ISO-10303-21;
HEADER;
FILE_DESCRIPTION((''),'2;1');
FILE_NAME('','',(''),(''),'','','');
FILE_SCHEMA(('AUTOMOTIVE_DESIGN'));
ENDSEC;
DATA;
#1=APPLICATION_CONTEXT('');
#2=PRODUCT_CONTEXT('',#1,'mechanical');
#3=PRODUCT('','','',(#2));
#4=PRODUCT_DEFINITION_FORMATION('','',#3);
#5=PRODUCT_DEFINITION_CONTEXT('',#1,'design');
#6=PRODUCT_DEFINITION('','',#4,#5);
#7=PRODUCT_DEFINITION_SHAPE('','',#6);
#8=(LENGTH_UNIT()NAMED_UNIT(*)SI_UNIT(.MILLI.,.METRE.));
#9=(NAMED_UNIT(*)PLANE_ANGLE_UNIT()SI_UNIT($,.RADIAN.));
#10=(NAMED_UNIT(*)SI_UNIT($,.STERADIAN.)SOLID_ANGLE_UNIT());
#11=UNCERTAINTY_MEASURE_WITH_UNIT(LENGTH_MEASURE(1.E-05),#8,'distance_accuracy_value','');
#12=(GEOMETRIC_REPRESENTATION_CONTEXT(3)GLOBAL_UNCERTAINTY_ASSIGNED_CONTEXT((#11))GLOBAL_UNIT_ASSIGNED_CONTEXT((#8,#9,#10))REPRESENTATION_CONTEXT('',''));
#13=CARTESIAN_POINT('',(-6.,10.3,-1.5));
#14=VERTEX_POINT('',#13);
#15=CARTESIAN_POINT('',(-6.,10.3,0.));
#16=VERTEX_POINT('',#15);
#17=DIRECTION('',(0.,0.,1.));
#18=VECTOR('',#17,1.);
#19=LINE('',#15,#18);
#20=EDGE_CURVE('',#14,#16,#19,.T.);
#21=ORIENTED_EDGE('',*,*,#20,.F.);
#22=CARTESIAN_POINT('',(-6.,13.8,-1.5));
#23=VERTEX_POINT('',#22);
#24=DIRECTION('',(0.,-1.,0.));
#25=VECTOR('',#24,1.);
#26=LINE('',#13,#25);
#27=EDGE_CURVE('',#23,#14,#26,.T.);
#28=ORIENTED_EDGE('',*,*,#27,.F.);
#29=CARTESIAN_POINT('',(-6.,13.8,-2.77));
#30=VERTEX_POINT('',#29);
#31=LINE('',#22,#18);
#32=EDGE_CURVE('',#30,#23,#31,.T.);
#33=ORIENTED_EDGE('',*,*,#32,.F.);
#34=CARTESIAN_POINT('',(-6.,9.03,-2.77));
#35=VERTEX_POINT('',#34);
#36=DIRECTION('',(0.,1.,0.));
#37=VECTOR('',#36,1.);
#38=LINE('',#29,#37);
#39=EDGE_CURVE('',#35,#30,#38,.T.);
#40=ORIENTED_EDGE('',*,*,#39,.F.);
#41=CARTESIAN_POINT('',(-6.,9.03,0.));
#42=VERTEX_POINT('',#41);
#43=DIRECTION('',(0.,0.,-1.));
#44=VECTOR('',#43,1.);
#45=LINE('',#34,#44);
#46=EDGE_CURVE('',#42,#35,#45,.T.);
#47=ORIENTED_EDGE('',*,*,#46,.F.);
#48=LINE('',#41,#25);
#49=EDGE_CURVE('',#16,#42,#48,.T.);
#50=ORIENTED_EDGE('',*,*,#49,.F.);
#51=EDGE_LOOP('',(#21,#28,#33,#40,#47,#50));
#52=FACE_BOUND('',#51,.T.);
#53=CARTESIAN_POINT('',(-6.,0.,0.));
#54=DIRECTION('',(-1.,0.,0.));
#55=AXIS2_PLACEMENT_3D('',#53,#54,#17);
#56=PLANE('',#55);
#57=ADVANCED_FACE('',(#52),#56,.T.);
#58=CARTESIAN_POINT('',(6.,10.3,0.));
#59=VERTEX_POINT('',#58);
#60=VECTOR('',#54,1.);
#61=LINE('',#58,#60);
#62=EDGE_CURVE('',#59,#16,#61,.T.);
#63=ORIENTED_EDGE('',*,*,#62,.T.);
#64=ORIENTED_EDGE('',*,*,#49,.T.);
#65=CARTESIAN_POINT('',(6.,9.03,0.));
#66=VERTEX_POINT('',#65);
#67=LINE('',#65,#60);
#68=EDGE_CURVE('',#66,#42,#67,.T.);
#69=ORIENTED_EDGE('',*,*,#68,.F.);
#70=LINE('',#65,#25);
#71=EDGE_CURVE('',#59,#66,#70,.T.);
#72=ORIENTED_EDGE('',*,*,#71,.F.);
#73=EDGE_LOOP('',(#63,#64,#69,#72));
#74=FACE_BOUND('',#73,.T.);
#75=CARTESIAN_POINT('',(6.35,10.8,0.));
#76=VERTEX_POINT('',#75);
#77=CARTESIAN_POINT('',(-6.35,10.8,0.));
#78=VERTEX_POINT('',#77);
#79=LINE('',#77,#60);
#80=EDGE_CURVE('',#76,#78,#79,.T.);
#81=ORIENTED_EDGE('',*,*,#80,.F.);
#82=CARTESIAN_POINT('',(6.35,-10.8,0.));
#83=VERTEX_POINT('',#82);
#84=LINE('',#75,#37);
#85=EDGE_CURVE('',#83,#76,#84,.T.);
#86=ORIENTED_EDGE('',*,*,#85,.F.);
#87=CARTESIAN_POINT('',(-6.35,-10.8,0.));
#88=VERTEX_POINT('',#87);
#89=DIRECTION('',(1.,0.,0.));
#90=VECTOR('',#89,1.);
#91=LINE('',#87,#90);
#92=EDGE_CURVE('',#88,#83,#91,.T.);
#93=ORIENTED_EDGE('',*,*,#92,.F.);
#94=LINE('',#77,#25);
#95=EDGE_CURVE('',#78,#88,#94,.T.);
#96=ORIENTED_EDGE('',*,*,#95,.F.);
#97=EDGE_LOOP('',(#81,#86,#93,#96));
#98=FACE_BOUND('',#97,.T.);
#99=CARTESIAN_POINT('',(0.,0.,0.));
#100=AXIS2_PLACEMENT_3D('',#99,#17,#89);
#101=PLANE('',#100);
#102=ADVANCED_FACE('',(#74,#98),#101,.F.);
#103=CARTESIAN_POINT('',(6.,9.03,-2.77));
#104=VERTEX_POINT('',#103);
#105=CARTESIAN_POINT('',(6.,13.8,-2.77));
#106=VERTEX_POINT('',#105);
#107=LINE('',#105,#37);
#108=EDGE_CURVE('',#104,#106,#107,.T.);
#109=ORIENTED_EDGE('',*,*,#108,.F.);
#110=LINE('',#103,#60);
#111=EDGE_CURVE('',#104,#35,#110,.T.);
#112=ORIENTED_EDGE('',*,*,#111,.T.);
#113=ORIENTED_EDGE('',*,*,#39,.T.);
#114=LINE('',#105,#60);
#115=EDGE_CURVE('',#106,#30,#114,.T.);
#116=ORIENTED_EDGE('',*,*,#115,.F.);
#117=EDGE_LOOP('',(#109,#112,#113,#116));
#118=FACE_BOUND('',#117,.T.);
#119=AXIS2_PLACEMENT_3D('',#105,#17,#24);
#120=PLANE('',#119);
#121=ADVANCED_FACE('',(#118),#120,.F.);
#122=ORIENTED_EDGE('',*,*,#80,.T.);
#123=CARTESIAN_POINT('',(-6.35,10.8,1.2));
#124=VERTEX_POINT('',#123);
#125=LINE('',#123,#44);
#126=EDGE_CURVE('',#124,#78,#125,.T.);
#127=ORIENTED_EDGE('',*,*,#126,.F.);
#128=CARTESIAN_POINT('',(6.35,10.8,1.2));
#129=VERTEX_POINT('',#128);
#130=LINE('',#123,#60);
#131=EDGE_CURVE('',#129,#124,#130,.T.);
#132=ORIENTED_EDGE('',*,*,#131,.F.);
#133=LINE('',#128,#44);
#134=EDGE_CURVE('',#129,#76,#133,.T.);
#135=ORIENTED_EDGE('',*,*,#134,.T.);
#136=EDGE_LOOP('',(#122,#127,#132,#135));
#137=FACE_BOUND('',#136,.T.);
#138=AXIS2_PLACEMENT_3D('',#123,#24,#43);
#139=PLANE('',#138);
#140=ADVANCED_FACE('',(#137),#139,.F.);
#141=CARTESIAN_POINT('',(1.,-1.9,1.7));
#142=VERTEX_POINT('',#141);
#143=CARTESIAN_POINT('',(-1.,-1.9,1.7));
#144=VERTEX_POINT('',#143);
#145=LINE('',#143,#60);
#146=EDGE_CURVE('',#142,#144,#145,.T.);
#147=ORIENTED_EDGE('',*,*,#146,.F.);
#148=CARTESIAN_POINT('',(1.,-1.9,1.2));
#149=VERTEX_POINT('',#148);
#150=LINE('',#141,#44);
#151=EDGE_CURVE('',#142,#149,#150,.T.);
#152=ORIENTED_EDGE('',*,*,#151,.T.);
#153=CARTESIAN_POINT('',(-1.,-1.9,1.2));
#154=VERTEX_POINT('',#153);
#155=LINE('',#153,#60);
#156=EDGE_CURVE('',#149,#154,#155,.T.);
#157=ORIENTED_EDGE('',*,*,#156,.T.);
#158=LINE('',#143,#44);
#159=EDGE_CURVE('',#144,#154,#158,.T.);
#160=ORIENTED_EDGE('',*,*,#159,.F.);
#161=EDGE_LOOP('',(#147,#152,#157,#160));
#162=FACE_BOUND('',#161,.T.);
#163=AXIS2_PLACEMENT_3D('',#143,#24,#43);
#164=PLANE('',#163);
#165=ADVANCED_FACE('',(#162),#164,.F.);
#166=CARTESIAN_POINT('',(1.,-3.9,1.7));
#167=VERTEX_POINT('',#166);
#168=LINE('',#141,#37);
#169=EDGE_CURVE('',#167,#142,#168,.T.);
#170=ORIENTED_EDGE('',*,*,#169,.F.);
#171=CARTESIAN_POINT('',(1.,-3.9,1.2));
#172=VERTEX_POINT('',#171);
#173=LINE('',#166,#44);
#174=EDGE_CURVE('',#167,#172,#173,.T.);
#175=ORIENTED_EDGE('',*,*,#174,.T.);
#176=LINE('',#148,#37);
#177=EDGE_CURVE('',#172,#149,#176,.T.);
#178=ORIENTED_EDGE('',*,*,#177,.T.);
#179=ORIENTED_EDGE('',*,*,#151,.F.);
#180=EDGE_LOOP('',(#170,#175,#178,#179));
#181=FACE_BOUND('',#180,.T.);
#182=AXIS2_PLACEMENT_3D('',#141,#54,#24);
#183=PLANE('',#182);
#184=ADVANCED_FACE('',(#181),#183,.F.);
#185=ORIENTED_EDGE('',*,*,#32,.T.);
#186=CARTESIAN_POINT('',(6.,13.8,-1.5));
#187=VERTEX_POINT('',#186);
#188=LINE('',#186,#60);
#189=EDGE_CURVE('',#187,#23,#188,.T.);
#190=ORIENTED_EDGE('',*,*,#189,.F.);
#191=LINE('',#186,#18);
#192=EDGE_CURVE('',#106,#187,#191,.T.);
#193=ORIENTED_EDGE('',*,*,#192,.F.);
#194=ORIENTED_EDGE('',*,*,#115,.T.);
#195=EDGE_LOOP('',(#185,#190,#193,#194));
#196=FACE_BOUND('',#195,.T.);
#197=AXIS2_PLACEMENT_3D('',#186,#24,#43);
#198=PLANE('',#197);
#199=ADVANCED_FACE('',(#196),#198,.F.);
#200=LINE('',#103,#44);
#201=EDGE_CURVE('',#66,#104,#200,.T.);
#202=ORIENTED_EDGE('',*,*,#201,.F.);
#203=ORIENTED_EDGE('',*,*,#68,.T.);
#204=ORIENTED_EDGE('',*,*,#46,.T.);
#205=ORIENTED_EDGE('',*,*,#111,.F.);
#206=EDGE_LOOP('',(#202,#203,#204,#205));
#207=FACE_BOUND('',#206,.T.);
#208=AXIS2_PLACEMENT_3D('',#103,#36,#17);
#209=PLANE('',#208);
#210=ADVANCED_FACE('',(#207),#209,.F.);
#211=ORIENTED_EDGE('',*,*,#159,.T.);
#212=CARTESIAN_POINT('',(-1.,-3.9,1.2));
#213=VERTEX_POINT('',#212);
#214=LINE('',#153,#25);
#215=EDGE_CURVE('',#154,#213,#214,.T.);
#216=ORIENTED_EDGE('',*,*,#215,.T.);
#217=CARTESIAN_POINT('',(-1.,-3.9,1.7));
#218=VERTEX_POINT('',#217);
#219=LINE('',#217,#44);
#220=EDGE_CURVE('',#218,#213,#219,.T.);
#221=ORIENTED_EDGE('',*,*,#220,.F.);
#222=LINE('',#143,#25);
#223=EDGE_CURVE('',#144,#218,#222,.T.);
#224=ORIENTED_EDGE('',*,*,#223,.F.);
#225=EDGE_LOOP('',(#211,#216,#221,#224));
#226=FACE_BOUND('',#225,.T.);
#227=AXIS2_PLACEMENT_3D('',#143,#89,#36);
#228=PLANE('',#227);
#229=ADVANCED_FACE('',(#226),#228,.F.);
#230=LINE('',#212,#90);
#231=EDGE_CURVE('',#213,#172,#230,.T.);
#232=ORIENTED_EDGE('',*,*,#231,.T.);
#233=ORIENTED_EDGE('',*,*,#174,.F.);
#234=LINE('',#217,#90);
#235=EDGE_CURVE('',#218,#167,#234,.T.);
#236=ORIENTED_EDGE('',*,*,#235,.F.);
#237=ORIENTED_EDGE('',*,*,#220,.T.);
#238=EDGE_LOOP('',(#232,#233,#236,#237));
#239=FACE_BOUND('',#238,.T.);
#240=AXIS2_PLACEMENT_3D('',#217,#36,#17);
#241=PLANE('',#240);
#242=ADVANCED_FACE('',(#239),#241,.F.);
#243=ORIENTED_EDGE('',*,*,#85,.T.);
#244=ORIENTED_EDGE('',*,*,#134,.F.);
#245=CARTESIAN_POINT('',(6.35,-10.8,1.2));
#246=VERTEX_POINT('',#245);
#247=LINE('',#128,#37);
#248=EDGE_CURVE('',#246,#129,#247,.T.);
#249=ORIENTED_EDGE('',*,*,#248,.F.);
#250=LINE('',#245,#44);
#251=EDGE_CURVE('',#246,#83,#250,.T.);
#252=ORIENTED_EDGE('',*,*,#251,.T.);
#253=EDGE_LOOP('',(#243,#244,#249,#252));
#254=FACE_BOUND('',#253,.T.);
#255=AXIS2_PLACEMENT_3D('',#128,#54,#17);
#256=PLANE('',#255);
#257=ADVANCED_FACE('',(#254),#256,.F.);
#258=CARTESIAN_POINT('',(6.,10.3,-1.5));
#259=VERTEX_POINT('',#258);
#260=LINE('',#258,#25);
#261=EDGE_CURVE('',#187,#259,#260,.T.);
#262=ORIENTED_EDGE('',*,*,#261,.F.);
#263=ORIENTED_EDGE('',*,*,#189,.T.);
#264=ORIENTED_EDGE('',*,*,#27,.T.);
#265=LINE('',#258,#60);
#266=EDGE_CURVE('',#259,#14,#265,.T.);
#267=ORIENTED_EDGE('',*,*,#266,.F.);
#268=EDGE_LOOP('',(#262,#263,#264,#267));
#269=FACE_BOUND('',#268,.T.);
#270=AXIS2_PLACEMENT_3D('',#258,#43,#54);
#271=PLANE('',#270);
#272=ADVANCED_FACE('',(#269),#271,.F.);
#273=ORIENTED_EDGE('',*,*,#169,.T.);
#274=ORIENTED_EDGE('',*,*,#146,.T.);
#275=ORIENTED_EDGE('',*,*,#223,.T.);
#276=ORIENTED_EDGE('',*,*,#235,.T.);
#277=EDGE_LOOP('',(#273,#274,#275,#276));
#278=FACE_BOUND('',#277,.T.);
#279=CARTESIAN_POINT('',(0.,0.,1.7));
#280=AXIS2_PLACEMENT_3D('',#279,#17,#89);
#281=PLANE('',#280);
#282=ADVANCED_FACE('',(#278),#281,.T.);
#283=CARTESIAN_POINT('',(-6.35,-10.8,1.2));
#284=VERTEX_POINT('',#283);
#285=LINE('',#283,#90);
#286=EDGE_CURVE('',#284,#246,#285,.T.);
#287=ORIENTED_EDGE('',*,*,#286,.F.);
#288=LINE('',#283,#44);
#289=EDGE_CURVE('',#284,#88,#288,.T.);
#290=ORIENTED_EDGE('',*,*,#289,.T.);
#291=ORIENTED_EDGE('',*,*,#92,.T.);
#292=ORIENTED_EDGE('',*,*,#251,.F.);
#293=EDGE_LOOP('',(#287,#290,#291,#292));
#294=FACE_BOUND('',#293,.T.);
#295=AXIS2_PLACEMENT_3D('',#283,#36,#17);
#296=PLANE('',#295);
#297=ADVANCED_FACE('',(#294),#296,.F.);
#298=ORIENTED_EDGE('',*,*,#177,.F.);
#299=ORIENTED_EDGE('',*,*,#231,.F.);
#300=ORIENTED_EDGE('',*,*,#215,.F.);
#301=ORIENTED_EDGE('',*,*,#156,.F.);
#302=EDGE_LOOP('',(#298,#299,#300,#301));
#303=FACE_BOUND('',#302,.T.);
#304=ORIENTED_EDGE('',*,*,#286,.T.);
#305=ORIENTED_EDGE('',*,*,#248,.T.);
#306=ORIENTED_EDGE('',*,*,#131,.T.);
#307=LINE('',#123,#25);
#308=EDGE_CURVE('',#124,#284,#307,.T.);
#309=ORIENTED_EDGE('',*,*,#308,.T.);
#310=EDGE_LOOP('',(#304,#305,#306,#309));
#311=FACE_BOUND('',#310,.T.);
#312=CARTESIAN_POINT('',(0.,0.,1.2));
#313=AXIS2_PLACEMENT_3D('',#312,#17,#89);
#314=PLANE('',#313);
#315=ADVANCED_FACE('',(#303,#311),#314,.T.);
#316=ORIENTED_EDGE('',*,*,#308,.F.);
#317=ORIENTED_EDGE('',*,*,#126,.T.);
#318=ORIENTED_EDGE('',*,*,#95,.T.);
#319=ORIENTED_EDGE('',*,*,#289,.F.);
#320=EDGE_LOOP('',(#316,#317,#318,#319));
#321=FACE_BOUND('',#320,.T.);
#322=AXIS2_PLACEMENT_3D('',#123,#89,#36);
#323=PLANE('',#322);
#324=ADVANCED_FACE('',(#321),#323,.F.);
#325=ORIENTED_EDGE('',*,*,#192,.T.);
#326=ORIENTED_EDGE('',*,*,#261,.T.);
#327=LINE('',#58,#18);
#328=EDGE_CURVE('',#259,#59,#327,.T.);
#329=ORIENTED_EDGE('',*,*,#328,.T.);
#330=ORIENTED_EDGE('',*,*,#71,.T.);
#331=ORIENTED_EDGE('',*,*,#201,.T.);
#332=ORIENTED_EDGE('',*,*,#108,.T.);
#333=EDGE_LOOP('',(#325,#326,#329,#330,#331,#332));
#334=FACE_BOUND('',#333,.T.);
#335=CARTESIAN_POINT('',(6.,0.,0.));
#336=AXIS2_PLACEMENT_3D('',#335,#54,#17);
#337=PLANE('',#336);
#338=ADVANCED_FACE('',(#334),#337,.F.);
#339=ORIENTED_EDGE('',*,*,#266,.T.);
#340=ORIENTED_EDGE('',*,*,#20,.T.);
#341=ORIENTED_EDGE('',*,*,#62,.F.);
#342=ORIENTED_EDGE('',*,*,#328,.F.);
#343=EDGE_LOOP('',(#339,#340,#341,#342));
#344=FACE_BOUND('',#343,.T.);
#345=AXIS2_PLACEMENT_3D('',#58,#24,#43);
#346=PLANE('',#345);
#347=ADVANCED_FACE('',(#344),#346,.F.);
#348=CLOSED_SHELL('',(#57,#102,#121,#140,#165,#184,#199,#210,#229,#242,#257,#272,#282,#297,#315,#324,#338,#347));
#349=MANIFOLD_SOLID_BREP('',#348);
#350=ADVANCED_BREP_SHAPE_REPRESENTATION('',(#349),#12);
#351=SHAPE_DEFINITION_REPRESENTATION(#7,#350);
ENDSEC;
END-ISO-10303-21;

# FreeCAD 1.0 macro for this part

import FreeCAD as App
import Part
import Sketcher

doc = App.newDocument("Part")
body = doc.addObject("PartDesign::Body", "Body")

# Sketch on XY plane
sketch1 = body.newObject("Sketcher::SketchObject", "Sketch")
sketch1.AttachmentSupport = (doc.getObject("XY_Plane"), [""])
sketch1.MapMode = "FlatFace"
sketch1.addGeometry(Part.LineSegment(App.Vector(-6, 11, 0), App.Vector(-6, -11, 0)), False)
sketch1.addGeometry(Part.LineSegment(App.Vector(-6, -11, 0), App.Vector(6, -11, 0)), False)
sketch1.addGeometry(Part.LineSegment(App.Vector(6, -11, 0), App.Vector(6, 11, 0)), False)
sketch1.addGeometry(Part.LineSegment(App.Vector(6, 11, 0), App.Vector(-6, 11, 0)), False)
sketch1.addConstraint(Sketcher.Constraint("Coincident", 0, 2, 1, 1))
sketch1.addConstraint(Sketcher.Constraint("Coincident", 1, 2, 2, 1))
sketch1.addConstraint(Sketcher.Constraint("Coincident", 2, 2, 3, 1))
sketch1.addConstraint(Sketcher.Constraint("Coincident", 3, 2, 0, 1))
sketch1.addConstraint(Sketcher.Constraint("Vertical", 0))
sketch1.addConstraint(Sketcher.Constraint("Horizontal", 1))
sketch1.addConstraint(Sketcher.Constraint("Vertical", 2))
sketch1.addConstraint(Sketcher.Constraint("Horizontal", 3))
sketch1.addConstraint(Sketcher.Constraint("Symmetric", 0, 2, 2, 2, -1, 1))
sketch1.addConstraint(Sketcher.Constraint("DistanceX", 1, 1, 1, 2, 12.7))
sketch1.addConstraint(Sketcher.Constraint("DistanceY", 0, 2, 0, 1, 21.6))
pad1 = body.newObject("PartDesign::Pad", "Pad")
pad1.Profile = sketch1
pad1.Length = 1.2

# Sketch on XY plane
sketch2 = body.newObject("Sketcher::SketchObject", "Sketch001")
sketch2.AttachmentSupport = (doc.getObject("XY_Plane"), [""])
sketch2.MapMode = "FlatFace"
sketch2.AttachmentOffset = App.Placement(App.Vector(0, 0, 1.2), App.Rotation())
sketch2.addGeometry(Part.LineSegment(App.Vector(-1, -1.9, 0), App.Vector(-1, -3.9, 0)), False)
sketch2.addGeometry(Part.LineSegment(App.Vector(-1, -3.9, 0), App.Vector(1, -3.9, 0)), False)
sketch2.addGeometry(Part.LineSegment(App.Vector(1, -3.9, 0), App.Vector(1, -1.9, 0)), False)
sketch2.addGeometry(Part.LineSegment(App.Vector(1, -1.9, 0), App.Vector(-1, -1.9, 0)), False)
sketch2.addConstraint(Sketcher.Constraint("Coincident", 0, 2, 1, 1))
sketch2.addConstraint(Sketcher.Constraint("Coincident", 1, 2, 2, 1))
sketch2.addConstraint(Sketcher.Constraint("Coincident", 2, 2, 3, 1))
sketch2.addConstraint(Sketcher.Constraint("Coincident", 3, 2, 0, 1))
sketch2.addConstraint(Sketcher.Constraint("Vertical", 0))
sketch2.addConstraint(Sketcher.Constraint("Horizontal", 1))
sketch2.addConstraint(Sketcher.Constraint("Vertical", 2))
sketch2.addConstraint(Sketcher.Constraint("Horizontal", 3))
sketch2.addConstraint(Sketcher.Constraint("Equal", 3, 0))
sketch2.addConstraint(Sketcher.Constraint("DistanceX", 1, 1, 1, 2, 2.0))
sketch2.addConstraint(Sketcher.Constraint("DistanceX", 0, 2, -1, 1, 1.0))
sketch2.addConstraint(Sketcher.Constraint("DistanceY", 0, 2, -1, 1, 3.9))
pad2 = body.newObject("PartDesign::Pad", "Pad001")
pad2.Profile = sketch2
pad2.Length = 0.5

# Sketch on YZ plane
sketch3 = body.newObject("Sketcher::SketchObject", "Sketch002")
sketch3.AttachmentSupport = (doc.getObject("YZ_Plane"), [""])
sketch3.MapMode = "FlatFace"
sketch3.addGeometry(Part.LineSegment(App.Vector(10.3, -1.5, 0), App.Vector(10.3, 0, 0)), False)
sketch3.addGeometry(Part.LineSegment(App.Vector(10.3, 0, 0), App.Vector(9, 0, 0)), False)
sketch3.addGeometry(Part.LineSegment(App.Vector(9, 0, 0), App.Vector(9, -2.8, 0)), False)
sketch3.addGeometry(Part.LineSegment(App.Vector(9, -2.8, 0), App.Vector(13.8, -2.8, 0)), False)
sketch3.addGeometry(Part.LineSegment(App.Vector(13.8, -2.8, 0), App.Vector(13.8, -1.5, 0)), False)
sketch3.addGeometry(Part.LineSegment(App.Vector(13.8, -1.5, 0), App.Vector(10.3, -1.5, 0)), False)
sketch3.addConstraint(Sketcher.Constraint("Coincident", 0, 2, 1, 1))
sketch3.addConstraint(Sketcher.Constraint("Coincident", 1, 2, 2, 1))
sketch3.addConstraint(Sketcher.Constraint("Coincident", 2, 2, 3, 1))
sketch3.addConstraint(Sketcher.Constraint("Coincident", 3, 2, 4, 1))
sketch3.addConstraint(Sketcher.Constraint("Coincident", 4, 2, 5, 1))
sketch3.addConstraint(Sketcher.Constraint("Coincident", 5, 2, 0, 1))
sketch3.addConstraint(Sketcher.Constraint("Vertical", 0))
sketch3.addConstraint(Sketcher.Constraint("Horizontal", 1))
sketch3.addConstraint(Sketcher.Constraint("Vertical", 2))
sketch3.addConstraint(Sketcher.Constraint("Horizontal", 3))
sketch3.addConstraint(Sketcher.Constraint("Vertical", 4))
sketch3.addConstraint(Sketcher.Constraint("Horizontal", 5))
sketch3.addConstraint(Sketcher.Constraint("PointOnObject", 0, 2, -1))
sketch3.addConstraint(Sketcher.Constraint("Equal", 1, 4))
sketch3.addConstraint(Sketcher.Constraint("DistanceX", 5, 2, 5, 1, 3.5))
sketch3.addConstraint(Sketcher.Constraint("DistanceY", 0, 1, 0, 2, 1.5))
sketch3.addConstraint(Sketcher.Constraint("DistanceX", 1, 2, 1, 1, 1.27))
sketch3.addConstraint(Sketcher.Constraint("DistanceX", -1, 1, 0, 2, 10.3))
pad3 = body.newObject("PartDesign::Pad", "Pad002")
pad3.Profile = sketch3
pad3.Length = 12
pad3.Midplane = True

doc.recompute()
